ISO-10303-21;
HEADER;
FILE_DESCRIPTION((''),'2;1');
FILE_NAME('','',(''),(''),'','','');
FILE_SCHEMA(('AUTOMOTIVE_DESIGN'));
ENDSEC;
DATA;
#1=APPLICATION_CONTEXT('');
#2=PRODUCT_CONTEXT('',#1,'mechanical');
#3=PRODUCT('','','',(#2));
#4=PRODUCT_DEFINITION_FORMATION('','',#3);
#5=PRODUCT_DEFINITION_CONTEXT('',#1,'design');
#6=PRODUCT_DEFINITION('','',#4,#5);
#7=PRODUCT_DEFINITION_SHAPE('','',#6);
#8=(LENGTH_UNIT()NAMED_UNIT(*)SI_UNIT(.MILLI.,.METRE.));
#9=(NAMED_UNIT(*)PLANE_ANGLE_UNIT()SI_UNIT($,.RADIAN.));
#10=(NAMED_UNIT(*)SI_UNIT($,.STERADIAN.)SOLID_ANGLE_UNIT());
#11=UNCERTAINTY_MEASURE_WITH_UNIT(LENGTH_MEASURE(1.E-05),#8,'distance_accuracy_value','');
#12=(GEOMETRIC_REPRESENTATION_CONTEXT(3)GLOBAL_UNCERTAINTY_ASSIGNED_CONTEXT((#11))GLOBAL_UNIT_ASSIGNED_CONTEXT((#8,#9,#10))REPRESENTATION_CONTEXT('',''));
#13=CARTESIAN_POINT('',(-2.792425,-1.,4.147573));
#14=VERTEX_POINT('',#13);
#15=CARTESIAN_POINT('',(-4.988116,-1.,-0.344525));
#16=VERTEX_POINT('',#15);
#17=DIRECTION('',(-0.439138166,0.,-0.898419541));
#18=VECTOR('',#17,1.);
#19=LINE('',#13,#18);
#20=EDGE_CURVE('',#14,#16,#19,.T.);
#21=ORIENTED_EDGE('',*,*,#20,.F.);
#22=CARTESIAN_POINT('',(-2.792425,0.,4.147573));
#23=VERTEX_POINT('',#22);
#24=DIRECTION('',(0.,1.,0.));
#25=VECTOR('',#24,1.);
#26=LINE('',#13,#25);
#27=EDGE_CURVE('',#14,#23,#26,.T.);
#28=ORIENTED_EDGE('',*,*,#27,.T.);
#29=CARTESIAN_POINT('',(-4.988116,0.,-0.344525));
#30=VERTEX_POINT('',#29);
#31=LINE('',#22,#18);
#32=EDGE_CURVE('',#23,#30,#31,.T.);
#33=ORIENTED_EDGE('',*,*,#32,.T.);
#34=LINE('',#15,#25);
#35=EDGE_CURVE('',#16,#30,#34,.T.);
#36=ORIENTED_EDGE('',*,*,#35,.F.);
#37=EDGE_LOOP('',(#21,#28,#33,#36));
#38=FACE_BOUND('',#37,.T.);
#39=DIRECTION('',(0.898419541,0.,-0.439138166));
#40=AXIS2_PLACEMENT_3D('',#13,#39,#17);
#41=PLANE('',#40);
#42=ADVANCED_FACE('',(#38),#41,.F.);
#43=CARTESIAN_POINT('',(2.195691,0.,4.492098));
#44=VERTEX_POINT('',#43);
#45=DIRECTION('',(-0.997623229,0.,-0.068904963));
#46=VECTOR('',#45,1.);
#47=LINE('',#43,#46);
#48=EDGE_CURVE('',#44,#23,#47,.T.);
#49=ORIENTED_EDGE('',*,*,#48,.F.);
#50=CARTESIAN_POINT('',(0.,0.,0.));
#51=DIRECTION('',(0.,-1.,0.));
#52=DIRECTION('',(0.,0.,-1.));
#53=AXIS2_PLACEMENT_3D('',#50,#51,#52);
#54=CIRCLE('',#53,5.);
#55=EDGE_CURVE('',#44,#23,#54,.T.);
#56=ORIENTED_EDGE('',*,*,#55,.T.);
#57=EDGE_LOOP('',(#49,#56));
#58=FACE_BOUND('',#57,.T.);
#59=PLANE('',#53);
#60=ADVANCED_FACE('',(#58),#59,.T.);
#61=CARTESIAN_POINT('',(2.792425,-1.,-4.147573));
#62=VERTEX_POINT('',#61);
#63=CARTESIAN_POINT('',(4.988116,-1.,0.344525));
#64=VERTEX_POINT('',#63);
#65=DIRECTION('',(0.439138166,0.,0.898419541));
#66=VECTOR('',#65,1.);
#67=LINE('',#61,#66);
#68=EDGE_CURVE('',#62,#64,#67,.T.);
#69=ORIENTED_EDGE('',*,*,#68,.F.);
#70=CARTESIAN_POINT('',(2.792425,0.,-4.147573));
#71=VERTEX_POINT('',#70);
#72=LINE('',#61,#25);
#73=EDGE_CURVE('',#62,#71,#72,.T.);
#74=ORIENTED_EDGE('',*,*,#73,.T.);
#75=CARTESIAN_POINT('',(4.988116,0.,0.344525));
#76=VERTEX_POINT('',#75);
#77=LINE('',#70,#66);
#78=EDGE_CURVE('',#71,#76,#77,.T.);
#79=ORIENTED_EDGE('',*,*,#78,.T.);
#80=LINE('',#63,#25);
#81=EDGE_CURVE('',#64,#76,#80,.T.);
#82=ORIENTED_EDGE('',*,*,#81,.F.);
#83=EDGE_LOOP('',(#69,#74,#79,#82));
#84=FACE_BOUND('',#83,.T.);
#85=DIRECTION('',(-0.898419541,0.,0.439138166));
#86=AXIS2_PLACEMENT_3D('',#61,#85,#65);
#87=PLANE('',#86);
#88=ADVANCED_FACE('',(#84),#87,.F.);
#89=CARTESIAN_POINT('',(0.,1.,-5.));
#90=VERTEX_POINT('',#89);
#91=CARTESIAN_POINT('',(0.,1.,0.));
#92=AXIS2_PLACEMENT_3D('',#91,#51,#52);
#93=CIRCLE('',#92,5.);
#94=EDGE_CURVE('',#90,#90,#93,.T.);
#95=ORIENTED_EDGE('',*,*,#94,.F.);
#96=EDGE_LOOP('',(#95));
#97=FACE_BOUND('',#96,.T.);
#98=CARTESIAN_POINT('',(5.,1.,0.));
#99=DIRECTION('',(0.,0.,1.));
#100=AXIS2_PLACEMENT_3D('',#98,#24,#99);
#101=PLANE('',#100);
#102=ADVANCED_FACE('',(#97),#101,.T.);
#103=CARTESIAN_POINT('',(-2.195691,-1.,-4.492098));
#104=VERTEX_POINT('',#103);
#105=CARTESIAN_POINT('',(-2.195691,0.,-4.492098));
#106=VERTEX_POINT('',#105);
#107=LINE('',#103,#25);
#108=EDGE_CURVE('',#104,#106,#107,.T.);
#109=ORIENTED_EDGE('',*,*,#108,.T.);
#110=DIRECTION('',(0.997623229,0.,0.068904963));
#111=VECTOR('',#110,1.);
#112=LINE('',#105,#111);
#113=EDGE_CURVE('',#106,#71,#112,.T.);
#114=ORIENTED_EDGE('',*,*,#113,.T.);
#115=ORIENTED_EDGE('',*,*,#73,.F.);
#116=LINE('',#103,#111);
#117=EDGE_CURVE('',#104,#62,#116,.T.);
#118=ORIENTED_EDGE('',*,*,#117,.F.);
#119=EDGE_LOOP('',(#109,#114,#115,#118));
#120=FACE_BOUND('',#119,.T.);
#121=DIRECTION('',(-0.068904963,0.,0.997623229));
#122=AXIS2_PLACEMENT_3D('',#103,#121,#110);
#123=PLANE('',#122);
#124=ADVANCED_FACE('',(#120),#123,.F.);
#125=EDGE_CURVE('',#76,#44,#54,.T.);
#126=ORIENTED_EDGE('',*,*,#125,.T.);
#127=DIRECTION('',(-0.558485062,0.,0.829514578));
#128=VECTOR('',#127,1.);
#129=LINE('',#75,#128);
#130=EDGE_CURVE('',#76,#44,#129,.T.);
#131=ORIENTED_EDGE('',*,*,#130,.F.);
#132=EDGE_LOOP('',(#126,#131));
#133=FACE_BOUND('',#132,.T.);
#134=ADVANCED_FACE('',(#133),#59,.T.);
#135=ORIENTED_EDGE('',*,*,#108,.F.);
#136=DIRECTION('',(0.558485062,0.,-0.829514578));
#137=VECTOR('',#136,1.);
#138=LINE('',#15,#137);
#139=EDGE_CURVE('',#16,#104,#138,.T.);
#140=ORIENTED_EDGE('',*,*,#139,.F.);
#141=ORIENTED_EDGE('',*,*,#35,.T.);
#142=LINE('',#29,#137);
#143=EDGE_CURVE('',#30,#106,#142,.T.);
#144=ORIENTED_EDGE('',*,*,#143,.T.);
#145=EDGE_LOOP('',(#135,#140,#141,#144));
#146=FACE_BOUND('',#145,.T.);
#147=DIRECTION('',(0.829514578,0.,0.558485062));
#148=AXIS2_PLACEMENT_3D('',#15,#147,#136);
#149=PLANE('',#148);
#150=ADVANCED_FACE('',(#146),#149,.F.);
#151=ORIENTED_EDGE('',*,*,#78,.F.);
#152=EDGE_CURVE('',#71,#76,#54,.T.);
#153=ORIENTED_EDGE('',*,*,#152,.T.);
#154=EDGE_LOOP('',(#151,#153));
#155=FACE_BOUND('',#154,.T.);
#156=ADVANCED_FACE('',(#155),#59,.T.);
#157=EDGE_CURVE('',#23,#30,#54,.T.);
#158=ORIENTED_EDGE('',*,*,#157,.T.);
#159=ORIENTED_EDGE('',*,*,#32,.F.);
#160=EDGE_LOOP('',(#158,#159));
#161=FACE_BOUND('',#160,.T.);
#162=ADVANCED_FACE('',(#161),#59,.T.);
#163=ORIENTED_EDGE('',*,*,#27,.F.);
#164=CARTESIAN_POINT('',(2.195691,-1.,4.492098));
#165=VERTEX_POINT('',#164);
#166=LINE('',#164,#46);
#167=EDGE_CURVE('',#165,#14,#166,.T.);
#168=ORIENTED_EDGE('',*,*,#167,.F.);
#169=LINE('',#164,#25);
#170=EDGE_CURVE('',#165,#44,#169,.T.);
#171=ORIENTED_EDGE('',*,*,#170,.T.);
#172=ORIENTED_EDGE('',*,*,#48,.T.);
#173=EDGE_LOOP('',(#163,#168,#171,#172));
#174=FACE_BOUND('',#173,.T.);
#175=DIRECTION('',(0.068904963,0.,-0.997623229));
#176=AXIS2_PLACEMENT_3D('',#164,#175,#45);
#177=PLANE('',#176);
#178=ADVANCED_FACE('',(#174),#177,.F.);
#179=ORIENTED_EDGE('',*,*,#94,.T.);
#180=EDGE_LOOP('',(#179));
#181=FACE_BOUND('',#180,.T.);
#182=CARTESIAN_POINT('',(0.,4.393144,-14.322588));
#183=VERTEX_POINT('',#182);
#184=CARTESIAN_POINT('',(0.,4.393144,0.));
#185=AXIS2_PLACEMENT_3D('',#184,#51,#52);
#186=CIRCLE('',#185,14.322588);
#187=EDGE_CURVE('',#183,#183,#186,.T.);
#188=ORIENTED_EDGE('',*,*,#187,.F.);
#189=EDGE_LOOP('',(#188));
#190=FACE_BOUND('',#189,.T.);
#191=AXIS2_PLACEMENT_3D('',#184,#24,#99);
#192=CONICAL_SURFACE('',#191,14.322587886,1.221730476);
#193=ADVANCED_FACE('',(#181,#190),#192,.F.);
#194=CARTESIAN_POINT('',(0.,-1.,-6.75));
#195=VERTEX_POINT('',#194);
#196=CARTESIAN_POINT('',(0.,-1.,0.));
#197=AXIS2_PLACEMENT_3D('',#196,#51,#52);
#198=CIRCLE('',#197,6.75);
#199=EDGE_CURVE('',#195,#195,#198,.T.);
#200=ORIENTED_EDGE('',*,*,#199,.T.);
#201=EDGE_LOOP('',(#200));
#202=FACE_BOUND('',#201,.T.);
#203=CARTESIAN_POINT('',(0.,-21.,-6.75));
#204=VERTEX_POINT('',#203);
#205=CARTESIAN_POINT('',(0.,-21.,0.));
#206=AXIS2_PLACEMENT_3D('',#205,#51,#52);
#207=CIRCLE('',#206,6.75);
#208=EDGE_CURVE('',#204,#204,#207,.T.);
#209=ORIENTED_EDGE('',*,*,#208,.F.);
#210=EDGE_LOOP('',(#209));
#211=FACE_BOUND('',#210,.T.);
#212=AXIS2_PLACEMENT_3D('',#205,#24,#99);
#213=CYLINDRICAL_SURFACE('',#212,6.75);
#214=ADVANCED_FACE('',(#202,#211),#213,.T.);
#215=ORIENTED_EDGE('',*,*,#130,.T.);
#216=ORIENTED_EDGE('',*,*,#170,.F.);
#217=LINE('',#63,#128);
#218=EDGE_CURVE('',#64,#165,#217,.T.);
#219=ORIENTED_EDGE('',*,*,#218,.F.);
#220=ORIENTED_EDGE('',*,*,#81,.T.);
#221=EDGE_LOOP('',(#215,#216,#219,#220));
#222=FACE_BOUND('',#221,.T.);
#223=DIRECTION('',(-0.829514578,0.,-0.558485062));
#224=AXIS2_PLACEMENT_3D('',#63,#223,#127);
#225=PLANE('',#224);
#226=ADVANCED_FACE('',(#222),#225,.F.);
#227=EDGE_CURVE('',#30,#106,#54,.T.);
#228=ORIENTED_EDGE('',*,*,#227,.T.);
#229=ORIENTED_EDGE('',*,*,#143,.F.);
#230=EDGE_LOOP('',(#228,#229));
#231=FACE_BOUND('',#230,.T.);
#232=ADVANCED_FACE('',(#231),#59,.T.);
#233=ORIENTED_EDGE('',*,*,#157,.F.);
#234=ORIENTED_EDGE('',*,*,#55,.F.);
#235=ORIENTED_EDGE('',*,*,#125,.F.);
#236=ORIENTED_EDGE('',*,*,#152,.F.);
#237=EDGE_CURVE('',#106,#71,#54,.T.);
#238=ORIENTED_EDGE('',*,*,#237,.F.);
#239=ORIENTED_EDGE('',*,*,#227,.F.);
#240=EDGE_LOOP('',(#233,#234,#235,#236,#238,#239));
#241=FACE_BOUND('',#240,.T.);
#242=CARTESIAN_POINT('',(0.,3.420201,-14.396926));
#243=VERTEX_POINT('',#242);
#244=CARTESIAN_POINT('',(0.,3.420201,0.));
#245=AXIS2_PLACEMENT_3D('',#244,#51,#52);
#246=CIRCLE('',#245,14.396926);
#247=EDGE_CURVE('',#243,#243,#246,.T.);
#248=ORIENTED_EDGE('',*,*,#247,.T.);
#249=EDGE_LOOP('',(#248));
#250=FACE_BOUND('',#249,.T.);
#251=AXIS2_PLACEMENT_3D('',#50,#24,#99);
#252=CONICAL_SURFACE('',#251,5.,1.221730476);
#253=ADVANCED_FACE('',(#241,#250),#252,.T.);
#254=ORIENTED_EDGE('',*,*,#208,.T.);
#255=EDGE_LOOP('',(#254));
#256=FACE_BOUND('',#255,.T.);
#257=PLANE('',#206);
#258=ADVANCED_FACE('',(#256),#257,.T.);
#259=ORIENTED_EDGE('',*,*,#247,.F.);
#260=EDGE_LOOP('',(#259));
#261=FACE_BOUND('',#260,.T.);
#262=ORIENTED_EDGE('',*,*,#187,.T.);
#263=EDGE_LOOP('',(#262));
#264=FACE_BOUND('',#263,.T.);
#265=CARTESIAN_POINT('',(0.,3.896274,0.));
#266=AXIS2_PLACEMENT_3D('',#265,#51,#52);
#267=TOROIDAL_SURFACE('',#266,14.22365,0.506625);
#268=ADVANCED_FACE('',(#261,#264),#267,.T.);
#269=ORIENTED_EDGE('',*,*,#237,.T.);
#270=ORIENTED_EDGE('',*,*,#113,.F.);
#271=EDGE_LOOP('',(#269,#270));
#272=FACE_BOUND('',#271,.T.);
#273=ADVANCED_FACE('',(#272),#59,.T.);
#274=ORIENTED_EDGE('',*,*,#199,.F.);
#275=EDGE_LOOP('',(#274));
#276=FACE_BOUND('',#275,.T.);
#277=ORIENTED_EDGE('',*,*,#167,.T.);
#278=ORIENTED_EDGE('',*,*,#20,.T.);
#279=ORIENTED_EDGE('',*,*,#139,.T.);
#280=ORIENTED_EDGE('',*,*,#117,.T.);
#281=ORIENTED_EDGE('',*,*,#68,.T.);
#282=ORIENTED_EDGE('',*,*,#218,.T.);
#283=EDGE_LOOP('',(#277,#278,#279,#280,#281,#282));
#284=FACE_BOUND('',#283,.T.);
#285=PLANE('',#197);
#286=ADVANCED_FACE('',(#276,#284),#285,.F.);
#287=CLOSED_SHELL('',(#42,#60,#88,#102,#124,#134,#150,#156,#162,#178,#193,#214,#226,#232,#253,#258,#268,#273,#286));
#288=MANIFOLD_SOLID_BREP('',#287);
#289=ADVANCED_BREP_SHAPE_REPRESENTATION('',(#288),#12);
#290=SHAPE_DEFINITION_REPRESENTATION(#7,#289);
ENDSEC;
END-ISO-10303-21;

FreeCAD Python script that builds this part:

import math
import FreeCAD as App
import Part
import Sketcher
from FreeCAD import Vector
Q = App.Units.Quantity

doc = App.newDocument("Part")
body = doc.addObject("PartDesign::Body", "Body")

# Sketch on XY plane
sketch1 = body.newObject("Sketcher::SketchObject", "Sketch")
sketch1.AttachmentSupport = (doc.getObject("XY_Plane"), [""])
sketch1.MapMode = "FlatFace"
sketch1.addGeometry(Part.LineSegment(Vector(0, 0, 0), Vector(5, 0, 0)), False)
sketch1.addGeometry(Part.LineSegment(Vector(5, 0, 0), Vector(14.396926, 3.420201, 0)), False)
sketch1.addGeometry(Part.ArcOfCircle(Part.Circle(Vector(14.22365, 3.896274, 0), Vector(0, 0, 1), 0.506625), math.radians(-70), math.radians(78.738461)), False)
sketch1.addGeometry(Part.LineSegment(Vector(14.322588, 4.393144, 0), Vector(5, 1, 0)), False)
sketch1.addGeometry(Part.LineSegment(Vector(5, 1, 0), Vector(0, 1, 0)), False)
sketch1.addGeometry(Part.LineSegment(Vector(0, 1, 0), Vector(0, 0, 0)), False)
sketch1.addConstraint(Sketcher.Constraint("Coincident", 0, 2, 1, 1))
sketch1.addConstraint(Sketcher.Constraint("Tangent", 1, 2, 2, 1))
sketch1.addConstraint(Sketcher.Constraint("Coincident", 2, 2, 3, 1))
sketch1.addConstraint(Sketcher.Constraint("Coincident", 3, 2, 4, 1))
sketch1.addConstraint(Sketcher.Constraint("Coincident", 4, 2, 5, 1))
sketch1.addConstraint(Sketcher.Constraint("Coincident", 5, 2, 0, 1))
sketch1.addConstraint(Sketcher.Constraint("Horizontal", 0))
sketch1.addConstraint(Sketcher.Constraint("Horizontal", 4))
sketch1.addConstraint(Sketcher.Constraint("Vertical", 5))
sketch1.addConstraint(Sketcher.Constraint("Coincident", 5, 2, -1, 1))
sketch1.addConstraint(Sketcher.Constraint("Parallel", 1, 3))
sketch1.addConstraint(Sketcher.Constraint("Vertical", 0, 2, 3, 2))
sketch1.addConstraint(Sketcher.Constraint("DistanceX", 0, 1, 0, 2, 5.0))
sketch1.addConstraint(Sketcher.Constraint("DistanceY", 5, 2, 5, 1, 1.0))
sketch1.addConstraint(Sketcher.Constraint("Angle", 1, Q("20 deg")))
sketch1.addConstraint(Sketcher.Constraint("Distance", 1, 10.0))
sketch1.addConstraint(Sketcher.Constraint("Radius", 2, 0.506625))
revolution = body.newObject("PartDesign::Revolution", "Revolution")
revolution.Profile = sketch1
revolution.ReferenceAxis = (sketch1, ["V_Axis"])
revolution.Angle = 360

# Sketch on XZ plane
sketch2 = body.newObject("Sketcher::SketchObject", "Sketch001")
sketch2.AttachmentSupport = (doc.getObject("XZ_Plane"), [""])
sketch2.MapMode = "FlatFace"
sketch2.addGeometry(Part.LineSegment(Vector(2.792425, -4.147573, 0), Vector(4.988116, 0.344525, 0)), False)
sketch2.addGeometry(Part.LineSegment(Vector(4.988116, 0.344525, 0), Vector(2.195691, 4.492098, 0)), False)
sketch2.addGeometry(Part.LineSegment(Vector(2.195691, 4.492098, 0), Vector(-2.792425, 4.147573, 0)), False)
sketch2.addGeometry(Part.LineSegment(Vector(-2.792425, 4.147573, 0), Vector(-4.988116, -0.344525, 0)), False)
sketch2.addGeometry(Part.LineSegment(Vector(-4.988116, -0.344525, 0), Vector(-2.195691, -4.492098, 0)), False)
sketch2.addGeometry(Part.LineSegment(Vector(-2.195691, -4.492098, 0), Vector(2.792425, -4.147573, 0)), False)
sketch2.addConstraint(Sketcher.Constraint("Coincident", 0, 2, 1, 1))
sketch2.addConstraint(Sketcher.Constraint("Coincident", 1, 2, 2, 1))
sketch2.addConstraint(Sketcher.Constraint("Coincident", 2, 2, 3, 1))
sketch2.addConstraint(Sketcher.Constraint("Coincident", 3, 2, 4, 1))
sketch2.addConstraint(Sketcher.Constraint("Coincident", 4, 2, 5, 1))
sketch2.addConstraint(Sketcher.Constraint("Coincident", 5, 2, 0, 1))
sketch2.addConstraint(Sketcher.Constraint("Symmetric", 0, 2, 3, 2, -1, 1))
sketch2.addConstraint(Sketcher.Constraint("Symmetric", 1, 2, 4, 2, -1, 1))
sketch2.addConstraint(Sketcher.Constraint("Symmetric", 2, 2, 5, 2, -1, 1))
sketch2.addConstraint(Sketcher.Constraint("Equal", 0, 1))
sketch2.addConstraint(Sketcher.Constraint("Equal", 1, 2))
sketch2.addConstraint(Sketcher.Constraint("Distance", 0, 5.0))
sketch2.addConstraint(Sketcher.Constraint("DistanceX", -1, 1, 1, 2, 2.195691))
sketch2.addConstraint(Sketcher.Constraint("DistanceX", 2, 2, 0, 2, 7.780541))
sketch2.addConstraint(Sketcher.Constraint("DistanceY", 0, 2, 2, 2, 3.803048))
pad1 = body.newObject("PartDesign::Pad", "Pad")
pad1.Profile = sketch2
pad1.Length = 1

# Sketch on XZ plane
sketch3 = body.newObject("Sketcher::SketchObject", "Sketch002")
sketch3.AttachmentSupport = (doc.getObject("XZ_Plane"), [""])
sketch3.MapMode = "FlatFace"
sketch3.AttachmentOffset = App.Placement(Vector(0, 0, 1), App.Rotation())
sketch3.addGeometry(Part.Circle(Vector(0, 0, 0), Vector(0, 0, 1), 6.75), False)
sketch3.addConstraint(Sketcher.Constraint("Coincident", 0, 3, -1, 1))
sketch3.addConstraint(Sketcher.Constraint("Diameter", 0, 13.5))
pad2 = body.newObject("PartDesign::Pad", "Pad001")
pad2.Profile = sketch3
pad2.Length = 20

doc.recompute()
